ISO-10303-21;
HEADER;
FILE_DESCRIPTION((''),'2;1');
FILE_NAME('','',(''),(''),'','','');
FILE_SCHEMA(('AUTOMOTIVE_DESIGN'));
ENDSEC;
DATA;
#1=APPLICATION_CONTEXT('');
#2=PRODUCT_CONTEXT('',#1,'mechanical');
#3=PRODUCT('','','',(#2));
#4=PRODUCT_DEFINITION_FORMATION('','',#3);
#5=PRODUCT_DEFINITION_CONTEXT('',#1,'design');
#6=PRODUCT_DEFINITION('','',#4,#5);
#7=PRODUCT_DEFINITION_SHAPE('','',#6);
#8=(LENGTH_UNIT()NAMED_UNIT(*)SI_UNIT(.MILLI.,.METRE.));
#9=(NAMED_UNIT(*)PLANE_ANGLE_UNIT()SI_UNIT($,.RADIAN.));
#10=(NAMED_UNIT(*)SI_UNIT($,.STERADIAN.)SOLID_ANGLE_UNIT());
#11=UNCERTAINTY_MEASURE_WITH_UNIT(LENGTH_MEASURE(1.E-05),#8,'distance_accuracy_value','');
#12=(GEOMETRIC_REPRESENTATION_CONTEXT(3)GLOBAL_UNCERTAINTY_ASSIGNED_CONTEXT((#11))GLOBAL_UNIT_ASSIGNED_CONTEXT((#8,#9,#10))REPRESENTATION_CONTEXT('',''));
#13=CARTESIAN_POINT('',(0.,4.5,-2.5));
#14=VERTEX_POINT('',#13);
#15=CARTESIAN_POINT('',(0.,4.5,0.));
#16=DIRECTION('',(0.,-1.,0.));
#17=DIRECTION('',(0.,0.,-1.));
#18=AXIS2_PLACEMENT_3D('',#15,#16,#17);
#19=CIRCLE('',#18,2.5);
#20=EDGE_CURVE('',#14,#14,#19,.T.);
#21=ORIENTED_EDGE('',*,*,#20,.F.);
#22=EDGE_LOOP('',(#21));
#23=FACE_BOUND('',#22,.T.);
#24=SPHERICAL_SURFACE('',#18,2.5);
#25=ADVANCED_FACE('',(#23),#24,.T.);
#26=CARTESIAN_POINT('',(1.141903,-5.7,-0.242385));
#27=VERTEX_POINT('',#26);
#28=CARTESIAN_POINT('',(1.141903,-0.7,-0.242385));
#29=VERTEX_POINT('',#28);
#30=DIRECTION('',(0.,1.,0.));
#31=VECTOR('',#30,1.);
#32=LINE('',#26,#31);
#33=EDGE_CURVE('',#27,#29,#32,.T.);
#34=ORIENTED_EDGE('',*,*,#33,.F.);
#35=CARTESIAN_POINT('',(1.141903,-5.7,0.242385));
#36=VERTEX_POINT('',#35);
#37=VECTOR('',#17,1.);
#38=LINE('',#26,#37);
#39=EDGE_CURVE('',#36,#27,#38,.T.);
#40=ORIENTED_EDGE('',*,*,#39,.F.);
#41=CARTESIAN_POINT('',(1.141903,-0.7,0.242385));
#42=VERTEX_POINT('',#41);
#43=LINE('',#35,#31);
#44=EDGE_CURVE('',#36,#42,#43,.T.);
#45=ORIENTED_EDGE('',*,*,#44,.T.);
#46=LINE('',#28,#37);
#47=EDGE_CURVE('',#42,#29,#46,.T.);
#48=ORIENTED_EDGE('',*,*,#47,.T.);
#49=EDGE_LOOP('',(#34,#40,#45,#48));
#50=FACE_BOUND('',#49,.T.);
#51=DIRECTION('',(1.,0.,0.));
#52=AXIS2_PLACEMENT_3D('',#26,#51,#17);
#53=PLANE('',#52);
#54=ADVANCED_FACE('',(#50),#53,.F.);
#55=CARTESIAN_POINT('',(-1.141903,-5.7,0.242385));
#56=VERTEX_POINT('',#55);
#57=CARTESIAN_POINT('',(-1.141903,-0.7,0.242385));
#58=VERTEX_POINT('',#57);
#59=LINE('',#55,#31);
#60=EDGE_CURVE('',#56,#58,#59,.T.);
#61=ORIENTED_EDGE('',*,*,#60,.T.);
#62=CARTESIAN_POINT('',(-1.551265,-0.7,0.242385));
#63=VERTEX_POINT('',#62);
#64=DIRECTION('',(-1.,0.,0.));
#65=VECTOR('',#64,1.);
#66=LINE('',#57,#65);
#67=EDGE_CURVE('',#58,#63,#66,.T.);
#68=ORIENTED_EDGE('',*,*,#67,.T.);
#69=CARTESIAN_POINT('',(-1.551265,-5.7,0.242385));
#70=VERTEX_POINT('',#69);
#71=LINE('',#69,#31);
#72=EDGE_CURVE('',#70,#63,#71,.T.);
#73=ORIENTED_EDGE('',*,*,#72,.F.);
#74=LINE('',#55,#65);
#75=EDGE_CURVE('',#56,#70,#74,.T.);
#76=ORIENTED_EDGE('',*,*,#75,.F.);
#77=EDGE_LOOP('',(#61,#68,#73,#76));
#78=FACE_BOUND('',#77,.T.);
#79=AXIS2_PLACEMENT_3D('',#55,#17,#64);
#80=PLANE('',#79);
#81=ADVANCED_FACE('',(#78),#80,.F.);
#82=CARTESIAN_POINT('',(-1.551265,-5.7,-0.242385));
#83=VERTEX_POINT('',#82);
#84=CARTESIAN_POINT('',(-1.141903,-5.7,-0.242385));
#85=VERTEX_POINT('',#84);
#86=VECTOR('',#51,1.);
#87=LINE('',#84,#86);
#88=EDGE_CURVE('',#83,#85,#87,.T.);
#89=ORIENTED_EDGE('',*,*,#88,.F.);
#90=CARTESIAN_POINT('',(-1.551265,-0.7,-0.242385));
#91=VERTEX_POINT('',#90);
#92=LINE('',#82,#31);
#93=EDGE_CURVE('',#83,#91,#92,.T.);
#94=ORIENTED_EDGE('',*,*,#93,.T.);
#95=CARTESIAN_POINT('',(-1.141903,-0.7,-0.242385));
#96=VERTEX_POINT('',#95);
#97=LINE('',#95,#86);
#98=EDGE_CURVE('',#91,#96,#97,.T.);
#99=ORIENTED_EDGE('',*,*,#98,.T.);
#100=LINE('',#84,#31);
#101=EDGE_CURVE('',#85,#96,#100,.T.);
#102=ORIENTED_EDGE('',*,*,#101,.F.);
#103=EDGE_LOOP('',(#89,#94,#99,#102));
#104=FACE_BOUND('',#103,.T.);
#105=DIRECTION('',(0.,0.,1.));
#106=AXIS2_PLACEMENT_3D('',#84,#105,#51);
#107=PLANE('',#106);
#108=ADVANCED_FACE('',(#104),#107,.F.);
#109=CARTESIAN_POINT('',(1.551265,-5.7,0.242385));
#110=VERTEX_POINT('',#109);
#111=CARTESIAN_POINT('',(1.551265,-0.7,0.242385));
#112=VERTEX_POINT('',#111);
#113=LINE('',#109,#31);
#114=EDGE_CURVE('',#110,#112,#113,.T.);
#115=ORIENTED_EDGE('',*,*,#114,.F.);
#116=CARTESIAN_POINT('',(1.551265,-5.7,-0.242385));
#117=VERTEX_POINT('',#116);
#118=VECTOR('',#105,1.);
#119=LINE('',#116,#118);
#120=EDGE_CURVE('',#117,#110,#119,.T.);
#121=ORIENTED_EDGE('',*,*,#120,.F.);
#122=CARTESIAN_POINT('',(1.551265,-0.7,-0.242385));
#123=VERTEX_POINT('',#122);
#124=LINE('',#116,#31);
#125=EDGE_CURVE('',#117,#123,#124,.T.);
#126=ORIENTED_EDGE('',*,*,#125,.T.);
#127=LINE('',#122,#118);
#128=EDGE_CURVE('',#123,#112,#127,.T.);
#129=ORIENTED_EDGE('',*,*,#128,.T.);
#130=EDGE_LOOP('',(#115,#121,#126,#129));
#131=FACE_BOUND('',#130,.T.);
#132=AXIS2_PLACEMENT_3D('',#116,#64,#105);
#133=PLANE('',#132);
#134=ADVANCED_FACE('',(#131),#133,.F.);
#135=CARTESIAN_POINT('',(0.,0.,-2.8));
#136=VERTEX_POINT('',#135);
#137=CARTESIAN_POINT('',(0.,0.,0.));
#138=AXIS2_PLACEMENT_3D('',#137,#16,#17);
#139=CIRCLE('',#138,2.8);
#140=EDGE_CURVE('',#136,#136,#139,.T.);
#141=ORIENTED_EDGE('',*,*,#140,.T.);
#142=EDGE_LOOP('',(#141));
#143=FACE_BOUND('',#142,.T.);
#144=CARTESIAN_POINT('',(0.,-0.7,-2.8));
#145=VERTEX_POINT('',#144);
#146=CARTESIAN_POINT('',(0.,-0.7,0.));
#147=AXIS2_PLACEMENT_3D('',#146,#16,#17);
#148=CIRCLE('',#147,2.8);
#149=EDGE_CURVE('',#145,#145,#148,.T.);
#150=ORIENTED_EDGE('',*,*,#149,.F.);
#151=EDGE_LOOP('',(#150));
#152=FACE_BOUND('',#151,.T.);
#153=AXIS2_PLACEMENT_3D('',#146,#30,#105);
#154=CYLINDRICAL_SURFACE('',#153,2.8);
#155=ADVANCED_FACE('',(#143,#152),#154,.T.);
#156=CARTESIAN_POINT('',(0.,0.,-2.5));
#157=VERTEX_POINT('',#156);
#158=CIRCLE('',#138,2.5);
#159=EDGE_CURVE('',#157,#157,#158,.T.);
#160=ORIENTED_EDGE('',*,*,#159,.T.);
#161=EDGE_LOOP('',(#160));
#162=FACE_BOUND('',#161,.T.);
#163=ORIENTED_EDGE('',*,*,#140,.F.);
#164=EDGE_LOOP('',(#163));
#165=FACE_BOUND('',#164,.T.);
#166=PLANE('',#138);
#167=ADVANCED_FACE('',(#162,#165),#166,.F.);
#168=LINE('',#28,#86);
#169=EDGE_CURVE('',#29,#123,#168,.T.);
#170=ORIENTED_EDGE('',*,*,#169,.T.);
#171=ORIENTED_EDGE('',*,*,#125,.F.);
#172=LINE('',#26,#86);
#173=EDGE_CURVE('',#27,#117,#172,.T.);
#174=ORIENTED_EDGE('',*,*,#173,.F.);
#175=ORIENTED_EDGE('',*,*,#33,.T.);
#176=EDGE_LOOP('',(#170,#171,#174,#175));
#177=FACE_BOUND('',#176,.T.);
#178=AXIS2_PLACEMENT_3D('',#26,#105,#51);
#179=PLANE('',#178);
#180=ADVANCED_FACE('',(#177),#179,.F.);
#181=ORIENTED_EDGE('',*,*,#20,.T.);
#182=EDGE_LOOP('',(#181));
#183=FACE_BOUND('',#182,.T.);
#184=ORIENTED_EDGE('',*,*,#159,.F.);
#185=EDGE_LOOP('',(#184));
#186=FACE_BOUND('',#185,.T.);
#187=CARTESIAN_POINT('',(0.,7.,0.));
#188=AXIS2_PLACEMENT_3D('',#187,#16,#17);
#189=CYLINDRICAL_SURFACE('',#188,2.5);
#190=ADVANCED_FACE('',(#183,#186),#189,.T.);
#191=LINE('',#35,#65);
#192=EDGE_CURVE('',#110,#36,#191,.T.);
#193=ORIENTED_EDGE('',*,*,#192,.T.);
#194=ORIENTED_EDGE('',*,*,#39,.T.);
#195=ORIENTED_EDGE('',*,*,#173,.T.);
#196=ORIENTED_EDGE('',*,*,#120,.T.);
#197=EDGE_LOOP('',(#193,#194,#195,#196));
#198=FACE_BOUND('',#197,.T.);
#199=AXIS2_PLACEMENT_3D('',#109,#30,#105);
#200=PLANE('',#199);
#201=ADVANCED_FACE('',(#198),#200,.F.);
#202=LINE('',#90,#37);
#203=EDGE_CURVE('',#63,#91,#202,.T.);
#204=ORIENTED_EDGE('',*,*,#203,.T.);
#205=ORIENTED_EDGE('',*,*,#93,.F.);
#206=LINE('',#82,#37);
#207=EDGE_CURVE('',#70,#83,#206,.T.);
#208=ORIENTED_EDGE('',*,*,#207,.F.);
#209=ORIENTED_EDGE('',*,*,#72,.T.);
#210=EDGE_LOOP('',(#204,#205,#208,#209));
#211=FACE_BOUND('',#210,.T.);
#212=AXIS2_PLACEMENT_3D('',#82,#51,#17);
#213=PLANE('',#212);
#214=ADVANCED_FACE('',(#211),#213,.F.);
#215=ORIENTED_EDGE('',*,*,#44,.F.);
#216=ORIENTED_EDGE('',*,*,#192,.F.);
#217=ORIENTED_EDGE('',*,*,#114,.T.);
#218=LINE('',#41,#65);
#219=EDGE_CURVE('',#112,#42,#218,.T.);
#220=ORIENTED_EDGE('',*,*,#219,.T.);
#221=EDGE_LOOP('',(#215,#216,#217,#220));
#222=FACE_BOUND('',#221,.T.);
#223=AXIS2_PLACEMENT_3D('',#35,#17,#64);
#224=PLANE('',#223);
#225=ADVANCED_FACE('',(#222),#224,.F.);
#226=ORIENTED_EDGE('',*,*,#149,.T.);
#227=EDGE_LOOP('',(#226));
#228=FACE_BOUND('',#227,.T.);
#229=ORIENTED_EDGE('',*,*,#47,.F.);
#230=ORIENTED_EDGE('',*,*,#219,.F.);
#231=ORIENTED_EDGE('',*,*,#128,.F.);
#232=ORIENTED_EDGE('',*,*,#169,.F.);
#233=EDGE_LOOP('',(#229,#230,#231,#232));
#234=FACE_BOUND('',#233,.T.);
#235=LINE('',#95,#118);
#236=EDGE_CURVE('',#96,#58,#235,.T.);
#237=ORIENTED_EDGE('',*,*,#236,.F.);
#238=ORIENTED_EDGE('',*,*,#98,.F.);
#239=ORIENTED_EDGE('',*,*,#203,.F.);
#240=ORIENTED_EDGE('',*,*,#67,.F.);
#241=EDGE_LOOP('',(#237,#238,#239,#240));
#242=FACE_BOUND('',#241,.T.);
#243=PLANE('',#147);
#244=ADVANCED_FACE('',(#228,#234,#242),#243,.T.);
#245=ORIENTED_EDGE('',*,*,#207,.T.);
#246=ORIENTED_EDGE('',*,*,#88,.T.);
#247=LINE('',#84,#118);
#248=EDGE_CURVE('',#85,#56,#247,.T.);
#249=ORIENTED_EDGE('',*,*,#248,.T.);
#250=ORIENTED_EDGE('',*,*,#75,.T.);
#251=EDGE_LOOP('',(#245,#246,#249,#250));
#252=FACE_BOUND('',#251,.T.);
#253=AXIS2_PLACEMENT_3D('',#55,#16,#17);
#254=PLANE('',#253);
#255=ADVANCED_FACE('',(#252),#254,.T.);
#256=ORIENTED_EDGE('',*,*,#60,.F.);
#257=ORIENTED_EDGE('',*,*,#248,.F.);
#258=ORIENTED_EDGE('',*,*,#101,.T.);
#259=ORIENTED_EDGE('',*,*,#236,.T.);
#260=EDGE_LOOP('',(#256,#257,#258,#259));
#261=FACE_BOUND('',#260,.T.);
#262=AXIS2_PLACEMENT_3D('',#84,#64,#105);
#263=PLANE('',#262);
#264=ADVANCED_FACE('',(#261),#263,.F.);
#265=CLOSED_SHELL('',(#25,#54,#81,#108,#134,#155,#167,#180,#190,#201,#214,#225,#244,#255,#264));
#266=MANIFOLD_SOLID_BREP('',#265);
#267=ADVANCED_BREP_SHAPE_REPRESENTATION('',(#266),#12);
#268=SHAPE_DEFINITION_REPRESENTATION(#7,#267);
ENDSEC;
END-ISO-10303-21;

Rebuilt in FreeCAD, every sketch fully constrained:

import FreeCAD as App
import Part
import Sketcher

V = App.Vector
Q = App.Units.Quantity


def edges_at(feature, points):
    """Names of the edges that pass closest to the given points."""
    edges = feature.Shape.Edges
    near = lambda p: min(range(len(edges)), key=lambda i: edges[i].distToShape(Part.Vertex(*p))[0])
    return sorted({f"Edge{near(p) + 1}" for p in points})

doc = App.newDocument("Part")
params = doc.addObject("Spreadsheet::Sheet", "Params")
for row, (alias, value) in enumerate([
    ("sketch1_diameter", "5 mm"),
    ("pad1_length", "7 mm"),
    ("sketch2_diameter", "5.6 mm"),
    ("pad2_length", "0.7 mm"),
    ("fillet_radius", "2.5 mm"),
    ("pad3_length", "5 mm"),
], start=1):
    params.set(f"A{row}", alias)
    params.set(f"B{row}", "=" + value)
    params.setAlias(f"B{row}", alias)

body = doc.addObject("PartDesign::Body", "Body")

sketch1 = body.newObject("Sketcher::SketchObject", "Sketch")
sketch1.AttachmentSupport = (doc.getObject("XZ_Plane"), [""])
sketch1.MapMode = "FlatFace"
sketch1.addGeometry(Part.Circle(V(0, 0, 0), V(0, 0, 1), 2.5), False)
sketch1.addConstraint([
    Sketcher.Constraint("Coincident", 0, 3, -1, 1),
    Sketcher.Constraint("Diameter", 0, Q("5 mm")),
])
sketch1.setExpression("Constraints[1]", "Params.sketch1_diameter")
pad1 = body.newObject("PartDesign::Pad", "Pad")
pad1.Profile = sketch1
pad1.setExpression("Length", "Params.pad1_length")
pad1.Reversed = True

sketch2 = body.newObject("Sketcher::SketchObject", "Sketch001")
sketch2.AttachmentSupport = (doc.getObject("XZ_Plane"), [""])
sketch2.MapMode = "FlatFace"
sketch2.addGeometry(Part.Circle(V(0, 0, 0), V(0, 0, 1), 2.8), False)
sketch2.addConstraint([
    Sketcher.Constraint("Coincident", 0, 3, -1, 1),
    Sketcher.Constraint("Diameter", 0, Q("5.6 mm")),
])
sketch2.setExpression("Constraints[1]", "Params.sketch2_diameter")
pad2 = body.newObject("PartDesign::Pad", "Pad001")
pad2.Profile = sketch2
pad2.setExpression("Length", "Params.pad2_length")
doc.recompute()

fillet = body.newObject("PartDesign::Fillet", "Fillet")
fillet.Base = (pad2, edges_at(pad2, [(-2.5, 7, 0)]))
fillet.setExpression("Radius", "Params.fillet_radius")

sketch3 = body.newObject("Sketcher::SketchObject", "Sketch002")
sketch3.AttachmentSupport = (doc.getObject("XZ_Plane"), [""])
sketch3.MapMode = "FlatFace"
sketch3.AttachmentOffset = App.Placement(V(0, 0, 0.7), App.Rotation())
sketch3.addGeometry([
    Part.LineSegment(V(1.14, 0.24, 0), V(1.14, -0.24, 0)),
    Part.LineSegment(V(1.14, -0.24, 0), V(1.55, -0.24, 0)),
    Part.LineSegment(V(1.55, -0.24, 0), V(1.55, 0.24, 0)),
    Part.LineSegment(V(1.55, 0.24, 0), V(1.14, 0.24, 0)),
    Part.LineSegment(V(-1.55, 0.24, 0), V(-1.55, -0.24, 0)),
    Part.LineSegment(V(-1.55, -0.24, 0), V(-1.14, -0.24, 0)),
    Part.LineSegment(V(-1.14, -0.24, 0), V(-1.14, 0.24, 0)),
    Part.LineSegment(V(-1.14, 0.24, 0), V(-1.55, 0.24, 0)),
], False)
sketch3.addConstraint([
    Sketcher.Constraint("Coincident", 0, 2, 1, 1),
    Sketcher.Constraint("Coincident", 1, 2, 2, 1),
    Sketcher.Constraint("Coincident", 2, 2, 3, 1),
    Sketcher.Constraint("Coincident", 3, 2, 0, 1),
    Sketcher.Constraint("Coincident", 4, 2, 5, 1),
    Sketcher.Constraint("Coincident", 5, 2, 6, 1),
    Sketcher.Constraint("Coincident", 6, 2, 7, 1),
    Sketcher.Constraint("Coincident", 7, 2, 4, 1),
    Sketcher.Constraint("Vertical", 0),
    Sketcher.Constraint("Horizontal", 1),
    Sketcher.Constraint("Vertical", 2),
    Sketcher.Constraint("Horizontal", 3),
    Sketcher.Constraint("Vertical", 4),
    Sketcher.Constraint("Horizontal", 5),
    Sketcher.Constraint("Vertical", 6),
    Sketcher.Constraint("Horizontal", 7),
    Sketcher.Constraint("Symmetric", 2, 2, 4, 2, -1, 1),
    Sketcher.Constraint("Symmetric", 0, 2, 6, 2, -1, 1),
    Sketcher.Constraint("Horizontal", 1, 2, 4, 2),
    Sketcher.Constraint("DistanceX", 1, 1, 1, 2, Q("0.409362 mm")),
    Sketcher.Constraint("DistanceY", 0, 2, 0, 1, Q("0.48477 mm")),
    Sketcher.Constraint("DistanceX", 4, 2, 1, 2, Q("3.102529 mm")),
])
pad3 = body.newObject("PartDesign::Pad", "Pad002")
pad3.Profile = sketch3
pad3.setExpression("Length", "Params.pad3_length")

doc.recompute()
